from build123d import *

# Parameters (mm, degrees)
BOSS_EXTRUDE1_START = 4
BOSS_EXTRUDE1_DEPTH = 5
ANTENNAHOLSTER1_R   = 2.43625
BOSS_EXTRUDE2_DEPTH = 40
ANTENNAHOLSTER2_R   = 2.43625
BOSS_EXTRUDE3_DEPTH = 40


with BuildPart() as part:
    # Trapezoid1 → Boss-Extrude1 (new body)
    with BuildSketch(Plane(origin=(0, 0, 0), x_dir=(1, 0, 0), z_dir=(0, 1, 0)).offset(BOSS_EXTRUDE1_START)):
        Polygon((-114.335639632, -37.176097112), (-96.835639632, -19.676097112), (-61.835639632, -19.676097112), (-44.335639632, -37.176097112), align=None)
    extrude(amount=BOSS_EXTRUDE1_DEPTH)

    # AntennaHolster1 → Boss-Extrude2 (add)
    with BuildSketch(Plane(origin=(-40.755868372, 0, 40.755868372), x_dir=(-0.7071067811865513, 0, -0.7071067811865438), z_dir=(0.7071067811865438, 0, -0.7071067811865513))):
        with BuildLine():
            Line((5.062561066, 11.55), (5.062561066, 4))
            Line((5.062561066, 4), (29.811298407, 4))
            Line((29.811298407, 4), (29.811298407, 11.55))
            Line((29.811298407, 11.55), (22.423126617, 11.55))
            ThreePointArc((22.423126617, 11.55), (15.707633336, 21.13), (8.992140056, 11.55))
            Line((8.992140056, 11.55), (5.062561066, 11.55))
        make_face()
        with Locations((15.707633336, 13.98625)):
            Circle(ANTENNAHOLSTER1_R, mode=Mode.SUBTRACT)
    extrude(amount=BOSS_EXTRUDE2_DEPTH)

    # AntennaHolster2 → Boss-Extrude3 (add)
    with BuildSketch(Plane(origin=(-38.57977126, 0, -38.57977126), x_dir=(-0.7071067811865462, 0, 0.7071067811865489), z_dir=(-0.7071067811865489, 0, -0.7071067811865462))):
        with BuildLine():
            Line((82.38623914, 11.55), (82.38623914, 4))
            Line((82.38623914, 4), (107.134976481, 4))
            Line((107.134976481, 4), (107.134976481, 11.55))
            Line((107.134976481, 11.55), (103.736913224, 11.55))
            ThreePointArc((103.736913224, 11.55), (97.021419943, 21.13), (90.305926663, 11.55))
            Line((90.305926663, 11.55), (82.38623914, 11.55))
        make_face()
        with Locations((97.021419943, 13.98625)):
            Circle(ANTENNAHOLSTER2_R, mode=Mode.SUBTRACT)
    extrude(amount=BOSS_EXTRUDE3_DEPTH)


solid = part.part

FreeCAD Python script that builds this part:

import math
import FreeCAD as App
import Part
import Sketcher
Q = App.Units.Quantity


def add_polygon(sketch, points):
    """Adds a closed chain of lines whose ends are joined by coincident constraints."""
    first, n = sketch.GeometryCount, len(points)
    for a, b in zip(points, points[1:] + points[:1]):
        sketch.addGeometry(Part.LineSegment(App.Vector(*a, 0), App.Vector(*b, 0)), False)
    for i in range(n):
        sketch.addConstraint(Sketcher.Constraint("Coincident", first + i, 2, first + (i + 1) % n, 1))

doc = App.newDocument("Part")
body = doc.addObject("PartDesign::Body", "Body")

sketch1 = body.newObject("Sketcher::SketchObject", "Sketch")
sketch1.AttachmentSupport = (doc.getObject("XZ_Plane"), [""])
sketch1.MapMode = "FlatFace"
sketch1.AttachmentOffset = App.Placement(App.Vector(0, 0, -4), App.Rotation())
add_polygon(sketch1, [(-97, 20), (-114, 37), (-44, 37), (-62, 20)])
sketch1.addConstraint(Sketcher.Constraint("Horizontal", 1))
sketch1.addConstraint(Sketcher.Constraint("Horizontal", 3))
sketch1.addConstraint(Sketcher.Constraint("Perpendicular", 0, 2))
sketch1.addConstraint(Sketcher.Constraint("Equal", 0, 2))
sketch1.addConstraint(Sketcher.Constraint("DistanceX", 1, 1, 1, 2, Q("70 mm")))
sketch1.addConstraint(Sketcher.Constraint("DistanceX", 3, 2, 3, 1, Q("35 mm")))
sketch1.addConstraint(Sketcher.Constraint("DistanceX", 0, 2, -1, 1, Q("114.33564 mm")))
sketch1.addConstraint(Sketcher.Constraint("DistanceY", -1, 1, 0, 2, Q("37.176097 mm")))
pad1 = body.newObject("PartDesign::Pad", "Pad")
pad1.Profile = sketch1
pad1.Length = 5
pad1.Reversed = True

sketch2 = body.newObject("Sketcher::SketchObject", "Sketch001")
sketch2.Placement = App.Placement(App.Vector(-40.755868, 0, 40.755868), App.Rotation(App.Vector(-0.707106781, 0, -0.707106781), App.Vector(0, 0.999999999, 0), App.Vector(0.707106781, 0, -0.707106781), "ZXY"))
sketch2.addGeometry(Part.LineSegment(App.Vector(5.1, 11.5, 0), App.Vector(5.1, 4, 0)), False)
sketch2.addGeometry(Part.LineSegment(App.Vector(5.1, 4, 0), App.Vector(29.8, 4, 0)), False)
sketch2.addGeometry(Part.LineSegment(App.Vector(29.8, 4, 0), App.Vector(29.8, 11.5, 0)), False)
sketch2.addGeometry(Part.LineSegment(App.Vector(29.8, 11.5, 0), App.Vector(22.4, 11.5, 0)), False)
sketch2.addGeometry(Part.ArcOfCircle(Part.Circle(App.Vector(15.7, 14, 0), App.Vector(0, 0, 1), 7.1), math.radians(-20), math.radians(200)), False)
sketch2.addGeometry(Part.LineSegment(App.Vector(9, 11.5, 0), App.Vector(5.1, 11.5, 0)), False)
sketch2.addGeometry(Part.Circle(App.Vector(15.7, 14, 0), App.Vector(0, 0, 1), 2.4), False)
sketch2.addConstraint(Sketcher.Constraint("Coincident", 0, 2, 1, 1))
sketch2.addConstraint(Sketcher.Constraint("Coincident", 1, 2, 2, 1))
sketch2.addConstraint(Sketcher.Constraint("Coincident", 2, 2, 3, 1))
sketch2.addConstraint(Sketcher.Constraint("Coincident", 3, 2, 4, 1))
sketch2.addConstraint(Sketcher.Constraint("Coincident", 4, 2, 5, 1))
sketch2.addConstraint(Sketcher.Constraint("Coincident", 5, 2, 0, 1))
sketch2.addConstraint(Sketcher.Constraint("Vertical", 0))
sketch2.addConstraint(Sketcher.Constraint("Horizontal", 1))
sketch2.addConstraint(Sketcher.Constraint("Vertical", 2))
sketch2.addConstraint(Sketcher.Constraint("Horizontal", 3))
sketch2.addConstraint(Sketcher.Constraint("Horizontal", 5))
sketch2.addConstraint(Sketcher.Constraint("Coincident", 6, 3, 4, 3))
sketch2.addConstraint(Sketcher.Constraint("Horizontal", 3, 2, 4, 2))
sketch2.addConstraint(Sketcher.Constraint("DistanceY", -1, 1, 0, 2, Q("4 mm")))
sketch2.addConstraint(Sketcher.Constraint("Diameter", 6, Q("4.8725 mm")))
sketch2.addConstraint(Sketcher.Constraint("DistanceY", 0, 2, 0, 1, Q("7.55 mm")))
sketch2.addConstraint(Sketcher.Constraint("Radius", 4, Q("7.14375 mm")))
sketch2.addConstraint(Sketcher.Constraint("DistanceX", 3, 2, 3, 1, Q("7.388172 mm")))
sketch2.addConstraint(Sketcher.Constraint("DistanceX", 5, 2, 5, 1, Q("3.929579 mm")))
sketch2.addConstraint(Sketcher.Constraint("DistanceX", -1, 1, 1, 2, Q("29.811298 mm")))
sketch2.addConstraint(Sketcher.Constraint("DistanceX", 1, 1, 1, 2, Q("24.748737 mm")))
pad2 = body.newObject("PartDesign::Pad", "Pad001")
pad2.Profile = sketch2
pad2.Length = 40

sketch3 = body.newObject("Sketcher::SketchObject", "Sketch002")
sketch3.Placement = App.Placement(App.Vector(-38.579771, 0, -38.579771), App.Rotation(App.Vector(-0.707106781, 0, 0.707106781), App.Vector(0, 0.999999999, 0), App.Vector(-0.707106781, 0, -0.707106781), "ZXY"))
sketch3.addGeometry(Part.LineSegment(App.Vector(82.4, 11.5, 0), App.Vector(82.4, 4, 0)), False)
sketch3.addGeometry(Part.LineSegment(App.Vector(82.4, 4, 0), App.Vector(107.1, 4, 0)), False)
sketch3.addGeometry(Part.LineSegment(App.Vector(107.1, 4, 0), App.Vector(107.1, 11.5, 0)), False)
sketch3.addGeometry(Part.LineSegment(App.Vector(107.1, 11.5, 0), App.Vector(103.7, 11.5, 0)), False)
sketch3.addGeometry(Part.ArcOfCircle(Part.Circle(App.Vector(97, 14, 0), App.Vector(0, 0, 1), 7.1), math.radians(-20), math.radians(200)), False)
sketch3.addGeometry(Part.LineSegment(App.Vector(90.3, 11.5, 0), App.Vector(82.4, 11.5, 0)), False)
sketch3.addGeometry(Part.Circle(App.Vector(97, 14, 0), App.Vector(0, 0, 1), 2.4), False)
sketch3.addConstraint(Sketcher.Constraint("Coincident", 0, 2, 1, 1))
sketch3.addConstraint(Sketcher.Constraint("Coincident", 1, 2, 2, 1))
sketch3.addConstraint(Sketcher.Constraint("Coincident", 2, 2, 3, 1))
sketch3.addConstraint(Sketcher.Constraint("Coincident", 3, 2, 4, 1))
sketch3.addConstraint(Sketcher.Constraint("Coincident", 4, 2, 5, 1))
sketch3.addConstraint(Sketcher.Constraint("Coincident", 5, 2, 0, 1))
sketch3.addConstraint(Sketcher.Constraint("Vertical", 0))
sketch3.addConstraint(Sketcher.Constraint("Horizontal", 1))
sketch3.addConstraint(Sketcher.Constraint("Vertical", 2))
sketch3.addConstraint(Sketcher.Constraint("Horizontal", 3))
sketch3.addConstraint(Sketcher.Constraint("Horizontal", 5))
sketch3.addConstraint(Sketcher.Constraint("Coincident", 6, 3, 4, 3))
sketch3.addConstraint(Sketcher.Constraint("Horizontal", 3, 2, 4, 2))
sketch3.addConstraint(Sketcher.Constraint("DistanceY", -1, 1, 0, 2, Q("4 mm")))
sketch3.addConstraint(Sketcher.Constraint("Diameter", 6, Q("4.8725 mm")))
sketch3.addConstraint(Sketcher.Constraint("DistanceY", 0, 2, 0, 1, Q("7.55 mm")))
sketch3.addConstraint(Sketcher.Constraint("Radius", 4, Q("7.14375 mm")))
sketch3.addConstraint(Sketcher.Constraint("DistanceX", 1, 1, 1, 2, Q("24.748737 mm")))
sketch3.addConstraint(Sketcher.Constraint("DistanceX", 3, 2, 3, 1, Q("3.398063 mm")))
sketch3.addConstraint(Sketcher.Constraint("DistanceX", 5, 2, 5, 1, Q("7.919688 mm")))
sketch3.addConstraint(Sketcher.Constraint("DistanceX", -1, 1, 4, 3, Q("97.02142 mm")))
pad3 = body.newObject("PartDesign::Pad", "Pad002")
pad3.Profile = sketch3
pad3.Length = 40

doc.recompute()
